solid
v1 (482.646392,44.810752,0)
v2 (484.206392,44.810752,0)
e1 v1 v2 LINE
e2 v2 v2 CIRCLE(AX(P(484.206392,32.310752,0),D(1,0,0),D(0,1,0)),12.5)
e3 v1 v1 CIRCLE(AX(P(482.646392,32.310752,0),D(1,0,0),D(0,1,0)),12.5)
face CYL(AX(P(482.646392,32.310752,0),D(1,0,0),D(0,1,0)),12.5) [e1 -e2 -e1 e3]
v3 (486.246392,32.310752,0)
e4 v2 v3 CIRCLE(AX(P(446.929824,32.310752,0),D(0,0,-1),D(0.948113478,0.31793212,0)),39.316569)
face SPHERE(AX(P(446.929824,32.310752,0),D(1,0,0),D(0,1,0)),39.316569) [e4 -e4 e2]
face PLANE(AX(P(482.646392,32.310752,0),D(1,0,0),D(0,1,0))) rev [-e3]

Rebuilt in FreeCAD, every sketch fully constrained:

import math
import FreeCAD as App
import Part
import Sketcher
Q = App.Units.Quantity

doc = App.newDocument("Part")
body = doc.addObject("PartDesign::Body", "Body")

sketch1 = doc.addObject("Sketcher::SketchObject", "Sketch")
body.addObject(sketch1)
sketch1.AttachmentSupport = (doc.XY_Plane, [""])
sketch1.MapMode = "FlatFace"
sketch1.addGeometry([
    Part.LineSegment(App.Vector(482.6, 44.8, 0), App.Vector(482.6, 32.3, 0)),
    Part.LineSegment(App.Vector(482.6, 32.3, 0), App.Vector(486.2, 32.3, 0)),
    Part.ArcOfCircle(Part.Circle(App.Vector(446.9, 32.3, 0), App.Vector(0, 0, 1), 39.3), math.radians(0), math.radians(18.54)),
    Part.LineSegment(App.Vector(484.2, 44.8, 0), App.Vector(482.6, 44.8, 0)),
], False)
sketch1.addGeometry(Part.LineSegment(App.Vector(446.9, 32.3, 0), App.Vector(486.2, 32.3, 0)), True)
sketch1.addConstraint([
    Sketcher.Constraint("Coincident", 0, 2, 1, 1),
    Sketcher.Constraint("Coincident", 1, 2, 2, 1),
    Sketcher.Constraint("Coincident", 2, 2, 3, 1),
    Sketcher.Constraint("Coincident", 3, 2, 0, 1),
    Sketcher.Constraint("Vertical", 0),
    Sketcher.Constraint("Horizontal", 1),
    Sketcher.Constraint("Horizontal", 3),
    Sketcher.Constraint("Horizontal", 4),
    Sketcher.Constraint("Coincident", 4, 1, 2, 3),
    Sketcher.Constraint("Coincident", 4, 2, 1, 2),
    Sketcher.Constraint("DistanceX", 1, 1, 1, 2, Q("3.6 mm")),
    Sketcher.Constraint("DistanceY", 0, 2, 0, 1, Q("12.5 mm")),
    Sketcher.Constraint("DistanceX", 3, 2, 3, 1, Q("1.56 mm")),
    Sketcher.Constraint("DistanceY", -1, 1, 2, 3, Q("32.310752 mm")),
    Sketcher.Constraint("DistanceX", -1, 1, 2, 3, Q("446.929824 mm")),
])
revolution = doc.addObject("PartDesign::Revolution", "Revolution")
body.addObject(revolution)
revolution.Profile = sketch1
revolution.ReferenceAxis = (sketch1, ["Axis0"])
revolution.Angle = 360

doc.recompute()
